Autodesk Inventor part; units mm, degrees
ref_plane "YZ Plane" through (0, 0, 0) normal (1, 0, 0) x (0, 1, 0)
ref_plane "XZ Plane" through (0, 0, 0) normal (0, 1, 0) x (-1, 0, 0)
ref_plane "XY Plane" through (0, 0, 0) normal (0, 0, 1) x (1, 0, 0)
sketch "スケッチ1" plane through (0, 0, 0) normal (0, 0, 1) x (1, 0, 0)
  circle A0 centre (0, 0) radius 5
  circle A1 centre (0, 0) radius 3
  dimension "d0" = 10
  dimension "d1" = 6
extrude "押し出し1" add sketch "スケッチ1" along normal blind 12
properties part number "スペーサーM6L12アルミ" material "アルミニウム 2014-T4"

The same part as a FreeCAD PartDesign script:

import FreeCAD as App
import Part
import Sketcher

doc = App.newDocument("Part")
body = doc.addObject("PartDesign::Body", "Body")

# Sketch on XY plane
sketch1 = doc.addObject("Sketcher::SketchObject", "Sketch")
body.addObject(sketch1)
sketch1.AttachmentSupport = (doc.XY_Plane, [""])
sketch1.MapMode = "FlatFace"
sketch1.addGeometry([
    Part.Circle(App.Vector(0, 0, 0), App.Vector(0, 0, 1), 5),
    Part.Circle(App.Vector(0, 0, 0), App.Vector(0, 0, 1), 3),
], False)
sketch1.addConstraint([
    Sketcher.Constraint("Coincident", 0, 3, -1, 1),
    Sketcher.Constraint("Coincident", 1, 3, -1, 1),
    Sketcher.Constraint("Diameter", 0, 10.0),
    Sketcher.Constraint("Diameter", 1, 6.0),
])
pad1 = doc.addObject("PartDesign::Pad", "Pad")
body.addObject(pad1)
pad1.Profile = sketch1
pad1.Length = 12

doc.recompute()
